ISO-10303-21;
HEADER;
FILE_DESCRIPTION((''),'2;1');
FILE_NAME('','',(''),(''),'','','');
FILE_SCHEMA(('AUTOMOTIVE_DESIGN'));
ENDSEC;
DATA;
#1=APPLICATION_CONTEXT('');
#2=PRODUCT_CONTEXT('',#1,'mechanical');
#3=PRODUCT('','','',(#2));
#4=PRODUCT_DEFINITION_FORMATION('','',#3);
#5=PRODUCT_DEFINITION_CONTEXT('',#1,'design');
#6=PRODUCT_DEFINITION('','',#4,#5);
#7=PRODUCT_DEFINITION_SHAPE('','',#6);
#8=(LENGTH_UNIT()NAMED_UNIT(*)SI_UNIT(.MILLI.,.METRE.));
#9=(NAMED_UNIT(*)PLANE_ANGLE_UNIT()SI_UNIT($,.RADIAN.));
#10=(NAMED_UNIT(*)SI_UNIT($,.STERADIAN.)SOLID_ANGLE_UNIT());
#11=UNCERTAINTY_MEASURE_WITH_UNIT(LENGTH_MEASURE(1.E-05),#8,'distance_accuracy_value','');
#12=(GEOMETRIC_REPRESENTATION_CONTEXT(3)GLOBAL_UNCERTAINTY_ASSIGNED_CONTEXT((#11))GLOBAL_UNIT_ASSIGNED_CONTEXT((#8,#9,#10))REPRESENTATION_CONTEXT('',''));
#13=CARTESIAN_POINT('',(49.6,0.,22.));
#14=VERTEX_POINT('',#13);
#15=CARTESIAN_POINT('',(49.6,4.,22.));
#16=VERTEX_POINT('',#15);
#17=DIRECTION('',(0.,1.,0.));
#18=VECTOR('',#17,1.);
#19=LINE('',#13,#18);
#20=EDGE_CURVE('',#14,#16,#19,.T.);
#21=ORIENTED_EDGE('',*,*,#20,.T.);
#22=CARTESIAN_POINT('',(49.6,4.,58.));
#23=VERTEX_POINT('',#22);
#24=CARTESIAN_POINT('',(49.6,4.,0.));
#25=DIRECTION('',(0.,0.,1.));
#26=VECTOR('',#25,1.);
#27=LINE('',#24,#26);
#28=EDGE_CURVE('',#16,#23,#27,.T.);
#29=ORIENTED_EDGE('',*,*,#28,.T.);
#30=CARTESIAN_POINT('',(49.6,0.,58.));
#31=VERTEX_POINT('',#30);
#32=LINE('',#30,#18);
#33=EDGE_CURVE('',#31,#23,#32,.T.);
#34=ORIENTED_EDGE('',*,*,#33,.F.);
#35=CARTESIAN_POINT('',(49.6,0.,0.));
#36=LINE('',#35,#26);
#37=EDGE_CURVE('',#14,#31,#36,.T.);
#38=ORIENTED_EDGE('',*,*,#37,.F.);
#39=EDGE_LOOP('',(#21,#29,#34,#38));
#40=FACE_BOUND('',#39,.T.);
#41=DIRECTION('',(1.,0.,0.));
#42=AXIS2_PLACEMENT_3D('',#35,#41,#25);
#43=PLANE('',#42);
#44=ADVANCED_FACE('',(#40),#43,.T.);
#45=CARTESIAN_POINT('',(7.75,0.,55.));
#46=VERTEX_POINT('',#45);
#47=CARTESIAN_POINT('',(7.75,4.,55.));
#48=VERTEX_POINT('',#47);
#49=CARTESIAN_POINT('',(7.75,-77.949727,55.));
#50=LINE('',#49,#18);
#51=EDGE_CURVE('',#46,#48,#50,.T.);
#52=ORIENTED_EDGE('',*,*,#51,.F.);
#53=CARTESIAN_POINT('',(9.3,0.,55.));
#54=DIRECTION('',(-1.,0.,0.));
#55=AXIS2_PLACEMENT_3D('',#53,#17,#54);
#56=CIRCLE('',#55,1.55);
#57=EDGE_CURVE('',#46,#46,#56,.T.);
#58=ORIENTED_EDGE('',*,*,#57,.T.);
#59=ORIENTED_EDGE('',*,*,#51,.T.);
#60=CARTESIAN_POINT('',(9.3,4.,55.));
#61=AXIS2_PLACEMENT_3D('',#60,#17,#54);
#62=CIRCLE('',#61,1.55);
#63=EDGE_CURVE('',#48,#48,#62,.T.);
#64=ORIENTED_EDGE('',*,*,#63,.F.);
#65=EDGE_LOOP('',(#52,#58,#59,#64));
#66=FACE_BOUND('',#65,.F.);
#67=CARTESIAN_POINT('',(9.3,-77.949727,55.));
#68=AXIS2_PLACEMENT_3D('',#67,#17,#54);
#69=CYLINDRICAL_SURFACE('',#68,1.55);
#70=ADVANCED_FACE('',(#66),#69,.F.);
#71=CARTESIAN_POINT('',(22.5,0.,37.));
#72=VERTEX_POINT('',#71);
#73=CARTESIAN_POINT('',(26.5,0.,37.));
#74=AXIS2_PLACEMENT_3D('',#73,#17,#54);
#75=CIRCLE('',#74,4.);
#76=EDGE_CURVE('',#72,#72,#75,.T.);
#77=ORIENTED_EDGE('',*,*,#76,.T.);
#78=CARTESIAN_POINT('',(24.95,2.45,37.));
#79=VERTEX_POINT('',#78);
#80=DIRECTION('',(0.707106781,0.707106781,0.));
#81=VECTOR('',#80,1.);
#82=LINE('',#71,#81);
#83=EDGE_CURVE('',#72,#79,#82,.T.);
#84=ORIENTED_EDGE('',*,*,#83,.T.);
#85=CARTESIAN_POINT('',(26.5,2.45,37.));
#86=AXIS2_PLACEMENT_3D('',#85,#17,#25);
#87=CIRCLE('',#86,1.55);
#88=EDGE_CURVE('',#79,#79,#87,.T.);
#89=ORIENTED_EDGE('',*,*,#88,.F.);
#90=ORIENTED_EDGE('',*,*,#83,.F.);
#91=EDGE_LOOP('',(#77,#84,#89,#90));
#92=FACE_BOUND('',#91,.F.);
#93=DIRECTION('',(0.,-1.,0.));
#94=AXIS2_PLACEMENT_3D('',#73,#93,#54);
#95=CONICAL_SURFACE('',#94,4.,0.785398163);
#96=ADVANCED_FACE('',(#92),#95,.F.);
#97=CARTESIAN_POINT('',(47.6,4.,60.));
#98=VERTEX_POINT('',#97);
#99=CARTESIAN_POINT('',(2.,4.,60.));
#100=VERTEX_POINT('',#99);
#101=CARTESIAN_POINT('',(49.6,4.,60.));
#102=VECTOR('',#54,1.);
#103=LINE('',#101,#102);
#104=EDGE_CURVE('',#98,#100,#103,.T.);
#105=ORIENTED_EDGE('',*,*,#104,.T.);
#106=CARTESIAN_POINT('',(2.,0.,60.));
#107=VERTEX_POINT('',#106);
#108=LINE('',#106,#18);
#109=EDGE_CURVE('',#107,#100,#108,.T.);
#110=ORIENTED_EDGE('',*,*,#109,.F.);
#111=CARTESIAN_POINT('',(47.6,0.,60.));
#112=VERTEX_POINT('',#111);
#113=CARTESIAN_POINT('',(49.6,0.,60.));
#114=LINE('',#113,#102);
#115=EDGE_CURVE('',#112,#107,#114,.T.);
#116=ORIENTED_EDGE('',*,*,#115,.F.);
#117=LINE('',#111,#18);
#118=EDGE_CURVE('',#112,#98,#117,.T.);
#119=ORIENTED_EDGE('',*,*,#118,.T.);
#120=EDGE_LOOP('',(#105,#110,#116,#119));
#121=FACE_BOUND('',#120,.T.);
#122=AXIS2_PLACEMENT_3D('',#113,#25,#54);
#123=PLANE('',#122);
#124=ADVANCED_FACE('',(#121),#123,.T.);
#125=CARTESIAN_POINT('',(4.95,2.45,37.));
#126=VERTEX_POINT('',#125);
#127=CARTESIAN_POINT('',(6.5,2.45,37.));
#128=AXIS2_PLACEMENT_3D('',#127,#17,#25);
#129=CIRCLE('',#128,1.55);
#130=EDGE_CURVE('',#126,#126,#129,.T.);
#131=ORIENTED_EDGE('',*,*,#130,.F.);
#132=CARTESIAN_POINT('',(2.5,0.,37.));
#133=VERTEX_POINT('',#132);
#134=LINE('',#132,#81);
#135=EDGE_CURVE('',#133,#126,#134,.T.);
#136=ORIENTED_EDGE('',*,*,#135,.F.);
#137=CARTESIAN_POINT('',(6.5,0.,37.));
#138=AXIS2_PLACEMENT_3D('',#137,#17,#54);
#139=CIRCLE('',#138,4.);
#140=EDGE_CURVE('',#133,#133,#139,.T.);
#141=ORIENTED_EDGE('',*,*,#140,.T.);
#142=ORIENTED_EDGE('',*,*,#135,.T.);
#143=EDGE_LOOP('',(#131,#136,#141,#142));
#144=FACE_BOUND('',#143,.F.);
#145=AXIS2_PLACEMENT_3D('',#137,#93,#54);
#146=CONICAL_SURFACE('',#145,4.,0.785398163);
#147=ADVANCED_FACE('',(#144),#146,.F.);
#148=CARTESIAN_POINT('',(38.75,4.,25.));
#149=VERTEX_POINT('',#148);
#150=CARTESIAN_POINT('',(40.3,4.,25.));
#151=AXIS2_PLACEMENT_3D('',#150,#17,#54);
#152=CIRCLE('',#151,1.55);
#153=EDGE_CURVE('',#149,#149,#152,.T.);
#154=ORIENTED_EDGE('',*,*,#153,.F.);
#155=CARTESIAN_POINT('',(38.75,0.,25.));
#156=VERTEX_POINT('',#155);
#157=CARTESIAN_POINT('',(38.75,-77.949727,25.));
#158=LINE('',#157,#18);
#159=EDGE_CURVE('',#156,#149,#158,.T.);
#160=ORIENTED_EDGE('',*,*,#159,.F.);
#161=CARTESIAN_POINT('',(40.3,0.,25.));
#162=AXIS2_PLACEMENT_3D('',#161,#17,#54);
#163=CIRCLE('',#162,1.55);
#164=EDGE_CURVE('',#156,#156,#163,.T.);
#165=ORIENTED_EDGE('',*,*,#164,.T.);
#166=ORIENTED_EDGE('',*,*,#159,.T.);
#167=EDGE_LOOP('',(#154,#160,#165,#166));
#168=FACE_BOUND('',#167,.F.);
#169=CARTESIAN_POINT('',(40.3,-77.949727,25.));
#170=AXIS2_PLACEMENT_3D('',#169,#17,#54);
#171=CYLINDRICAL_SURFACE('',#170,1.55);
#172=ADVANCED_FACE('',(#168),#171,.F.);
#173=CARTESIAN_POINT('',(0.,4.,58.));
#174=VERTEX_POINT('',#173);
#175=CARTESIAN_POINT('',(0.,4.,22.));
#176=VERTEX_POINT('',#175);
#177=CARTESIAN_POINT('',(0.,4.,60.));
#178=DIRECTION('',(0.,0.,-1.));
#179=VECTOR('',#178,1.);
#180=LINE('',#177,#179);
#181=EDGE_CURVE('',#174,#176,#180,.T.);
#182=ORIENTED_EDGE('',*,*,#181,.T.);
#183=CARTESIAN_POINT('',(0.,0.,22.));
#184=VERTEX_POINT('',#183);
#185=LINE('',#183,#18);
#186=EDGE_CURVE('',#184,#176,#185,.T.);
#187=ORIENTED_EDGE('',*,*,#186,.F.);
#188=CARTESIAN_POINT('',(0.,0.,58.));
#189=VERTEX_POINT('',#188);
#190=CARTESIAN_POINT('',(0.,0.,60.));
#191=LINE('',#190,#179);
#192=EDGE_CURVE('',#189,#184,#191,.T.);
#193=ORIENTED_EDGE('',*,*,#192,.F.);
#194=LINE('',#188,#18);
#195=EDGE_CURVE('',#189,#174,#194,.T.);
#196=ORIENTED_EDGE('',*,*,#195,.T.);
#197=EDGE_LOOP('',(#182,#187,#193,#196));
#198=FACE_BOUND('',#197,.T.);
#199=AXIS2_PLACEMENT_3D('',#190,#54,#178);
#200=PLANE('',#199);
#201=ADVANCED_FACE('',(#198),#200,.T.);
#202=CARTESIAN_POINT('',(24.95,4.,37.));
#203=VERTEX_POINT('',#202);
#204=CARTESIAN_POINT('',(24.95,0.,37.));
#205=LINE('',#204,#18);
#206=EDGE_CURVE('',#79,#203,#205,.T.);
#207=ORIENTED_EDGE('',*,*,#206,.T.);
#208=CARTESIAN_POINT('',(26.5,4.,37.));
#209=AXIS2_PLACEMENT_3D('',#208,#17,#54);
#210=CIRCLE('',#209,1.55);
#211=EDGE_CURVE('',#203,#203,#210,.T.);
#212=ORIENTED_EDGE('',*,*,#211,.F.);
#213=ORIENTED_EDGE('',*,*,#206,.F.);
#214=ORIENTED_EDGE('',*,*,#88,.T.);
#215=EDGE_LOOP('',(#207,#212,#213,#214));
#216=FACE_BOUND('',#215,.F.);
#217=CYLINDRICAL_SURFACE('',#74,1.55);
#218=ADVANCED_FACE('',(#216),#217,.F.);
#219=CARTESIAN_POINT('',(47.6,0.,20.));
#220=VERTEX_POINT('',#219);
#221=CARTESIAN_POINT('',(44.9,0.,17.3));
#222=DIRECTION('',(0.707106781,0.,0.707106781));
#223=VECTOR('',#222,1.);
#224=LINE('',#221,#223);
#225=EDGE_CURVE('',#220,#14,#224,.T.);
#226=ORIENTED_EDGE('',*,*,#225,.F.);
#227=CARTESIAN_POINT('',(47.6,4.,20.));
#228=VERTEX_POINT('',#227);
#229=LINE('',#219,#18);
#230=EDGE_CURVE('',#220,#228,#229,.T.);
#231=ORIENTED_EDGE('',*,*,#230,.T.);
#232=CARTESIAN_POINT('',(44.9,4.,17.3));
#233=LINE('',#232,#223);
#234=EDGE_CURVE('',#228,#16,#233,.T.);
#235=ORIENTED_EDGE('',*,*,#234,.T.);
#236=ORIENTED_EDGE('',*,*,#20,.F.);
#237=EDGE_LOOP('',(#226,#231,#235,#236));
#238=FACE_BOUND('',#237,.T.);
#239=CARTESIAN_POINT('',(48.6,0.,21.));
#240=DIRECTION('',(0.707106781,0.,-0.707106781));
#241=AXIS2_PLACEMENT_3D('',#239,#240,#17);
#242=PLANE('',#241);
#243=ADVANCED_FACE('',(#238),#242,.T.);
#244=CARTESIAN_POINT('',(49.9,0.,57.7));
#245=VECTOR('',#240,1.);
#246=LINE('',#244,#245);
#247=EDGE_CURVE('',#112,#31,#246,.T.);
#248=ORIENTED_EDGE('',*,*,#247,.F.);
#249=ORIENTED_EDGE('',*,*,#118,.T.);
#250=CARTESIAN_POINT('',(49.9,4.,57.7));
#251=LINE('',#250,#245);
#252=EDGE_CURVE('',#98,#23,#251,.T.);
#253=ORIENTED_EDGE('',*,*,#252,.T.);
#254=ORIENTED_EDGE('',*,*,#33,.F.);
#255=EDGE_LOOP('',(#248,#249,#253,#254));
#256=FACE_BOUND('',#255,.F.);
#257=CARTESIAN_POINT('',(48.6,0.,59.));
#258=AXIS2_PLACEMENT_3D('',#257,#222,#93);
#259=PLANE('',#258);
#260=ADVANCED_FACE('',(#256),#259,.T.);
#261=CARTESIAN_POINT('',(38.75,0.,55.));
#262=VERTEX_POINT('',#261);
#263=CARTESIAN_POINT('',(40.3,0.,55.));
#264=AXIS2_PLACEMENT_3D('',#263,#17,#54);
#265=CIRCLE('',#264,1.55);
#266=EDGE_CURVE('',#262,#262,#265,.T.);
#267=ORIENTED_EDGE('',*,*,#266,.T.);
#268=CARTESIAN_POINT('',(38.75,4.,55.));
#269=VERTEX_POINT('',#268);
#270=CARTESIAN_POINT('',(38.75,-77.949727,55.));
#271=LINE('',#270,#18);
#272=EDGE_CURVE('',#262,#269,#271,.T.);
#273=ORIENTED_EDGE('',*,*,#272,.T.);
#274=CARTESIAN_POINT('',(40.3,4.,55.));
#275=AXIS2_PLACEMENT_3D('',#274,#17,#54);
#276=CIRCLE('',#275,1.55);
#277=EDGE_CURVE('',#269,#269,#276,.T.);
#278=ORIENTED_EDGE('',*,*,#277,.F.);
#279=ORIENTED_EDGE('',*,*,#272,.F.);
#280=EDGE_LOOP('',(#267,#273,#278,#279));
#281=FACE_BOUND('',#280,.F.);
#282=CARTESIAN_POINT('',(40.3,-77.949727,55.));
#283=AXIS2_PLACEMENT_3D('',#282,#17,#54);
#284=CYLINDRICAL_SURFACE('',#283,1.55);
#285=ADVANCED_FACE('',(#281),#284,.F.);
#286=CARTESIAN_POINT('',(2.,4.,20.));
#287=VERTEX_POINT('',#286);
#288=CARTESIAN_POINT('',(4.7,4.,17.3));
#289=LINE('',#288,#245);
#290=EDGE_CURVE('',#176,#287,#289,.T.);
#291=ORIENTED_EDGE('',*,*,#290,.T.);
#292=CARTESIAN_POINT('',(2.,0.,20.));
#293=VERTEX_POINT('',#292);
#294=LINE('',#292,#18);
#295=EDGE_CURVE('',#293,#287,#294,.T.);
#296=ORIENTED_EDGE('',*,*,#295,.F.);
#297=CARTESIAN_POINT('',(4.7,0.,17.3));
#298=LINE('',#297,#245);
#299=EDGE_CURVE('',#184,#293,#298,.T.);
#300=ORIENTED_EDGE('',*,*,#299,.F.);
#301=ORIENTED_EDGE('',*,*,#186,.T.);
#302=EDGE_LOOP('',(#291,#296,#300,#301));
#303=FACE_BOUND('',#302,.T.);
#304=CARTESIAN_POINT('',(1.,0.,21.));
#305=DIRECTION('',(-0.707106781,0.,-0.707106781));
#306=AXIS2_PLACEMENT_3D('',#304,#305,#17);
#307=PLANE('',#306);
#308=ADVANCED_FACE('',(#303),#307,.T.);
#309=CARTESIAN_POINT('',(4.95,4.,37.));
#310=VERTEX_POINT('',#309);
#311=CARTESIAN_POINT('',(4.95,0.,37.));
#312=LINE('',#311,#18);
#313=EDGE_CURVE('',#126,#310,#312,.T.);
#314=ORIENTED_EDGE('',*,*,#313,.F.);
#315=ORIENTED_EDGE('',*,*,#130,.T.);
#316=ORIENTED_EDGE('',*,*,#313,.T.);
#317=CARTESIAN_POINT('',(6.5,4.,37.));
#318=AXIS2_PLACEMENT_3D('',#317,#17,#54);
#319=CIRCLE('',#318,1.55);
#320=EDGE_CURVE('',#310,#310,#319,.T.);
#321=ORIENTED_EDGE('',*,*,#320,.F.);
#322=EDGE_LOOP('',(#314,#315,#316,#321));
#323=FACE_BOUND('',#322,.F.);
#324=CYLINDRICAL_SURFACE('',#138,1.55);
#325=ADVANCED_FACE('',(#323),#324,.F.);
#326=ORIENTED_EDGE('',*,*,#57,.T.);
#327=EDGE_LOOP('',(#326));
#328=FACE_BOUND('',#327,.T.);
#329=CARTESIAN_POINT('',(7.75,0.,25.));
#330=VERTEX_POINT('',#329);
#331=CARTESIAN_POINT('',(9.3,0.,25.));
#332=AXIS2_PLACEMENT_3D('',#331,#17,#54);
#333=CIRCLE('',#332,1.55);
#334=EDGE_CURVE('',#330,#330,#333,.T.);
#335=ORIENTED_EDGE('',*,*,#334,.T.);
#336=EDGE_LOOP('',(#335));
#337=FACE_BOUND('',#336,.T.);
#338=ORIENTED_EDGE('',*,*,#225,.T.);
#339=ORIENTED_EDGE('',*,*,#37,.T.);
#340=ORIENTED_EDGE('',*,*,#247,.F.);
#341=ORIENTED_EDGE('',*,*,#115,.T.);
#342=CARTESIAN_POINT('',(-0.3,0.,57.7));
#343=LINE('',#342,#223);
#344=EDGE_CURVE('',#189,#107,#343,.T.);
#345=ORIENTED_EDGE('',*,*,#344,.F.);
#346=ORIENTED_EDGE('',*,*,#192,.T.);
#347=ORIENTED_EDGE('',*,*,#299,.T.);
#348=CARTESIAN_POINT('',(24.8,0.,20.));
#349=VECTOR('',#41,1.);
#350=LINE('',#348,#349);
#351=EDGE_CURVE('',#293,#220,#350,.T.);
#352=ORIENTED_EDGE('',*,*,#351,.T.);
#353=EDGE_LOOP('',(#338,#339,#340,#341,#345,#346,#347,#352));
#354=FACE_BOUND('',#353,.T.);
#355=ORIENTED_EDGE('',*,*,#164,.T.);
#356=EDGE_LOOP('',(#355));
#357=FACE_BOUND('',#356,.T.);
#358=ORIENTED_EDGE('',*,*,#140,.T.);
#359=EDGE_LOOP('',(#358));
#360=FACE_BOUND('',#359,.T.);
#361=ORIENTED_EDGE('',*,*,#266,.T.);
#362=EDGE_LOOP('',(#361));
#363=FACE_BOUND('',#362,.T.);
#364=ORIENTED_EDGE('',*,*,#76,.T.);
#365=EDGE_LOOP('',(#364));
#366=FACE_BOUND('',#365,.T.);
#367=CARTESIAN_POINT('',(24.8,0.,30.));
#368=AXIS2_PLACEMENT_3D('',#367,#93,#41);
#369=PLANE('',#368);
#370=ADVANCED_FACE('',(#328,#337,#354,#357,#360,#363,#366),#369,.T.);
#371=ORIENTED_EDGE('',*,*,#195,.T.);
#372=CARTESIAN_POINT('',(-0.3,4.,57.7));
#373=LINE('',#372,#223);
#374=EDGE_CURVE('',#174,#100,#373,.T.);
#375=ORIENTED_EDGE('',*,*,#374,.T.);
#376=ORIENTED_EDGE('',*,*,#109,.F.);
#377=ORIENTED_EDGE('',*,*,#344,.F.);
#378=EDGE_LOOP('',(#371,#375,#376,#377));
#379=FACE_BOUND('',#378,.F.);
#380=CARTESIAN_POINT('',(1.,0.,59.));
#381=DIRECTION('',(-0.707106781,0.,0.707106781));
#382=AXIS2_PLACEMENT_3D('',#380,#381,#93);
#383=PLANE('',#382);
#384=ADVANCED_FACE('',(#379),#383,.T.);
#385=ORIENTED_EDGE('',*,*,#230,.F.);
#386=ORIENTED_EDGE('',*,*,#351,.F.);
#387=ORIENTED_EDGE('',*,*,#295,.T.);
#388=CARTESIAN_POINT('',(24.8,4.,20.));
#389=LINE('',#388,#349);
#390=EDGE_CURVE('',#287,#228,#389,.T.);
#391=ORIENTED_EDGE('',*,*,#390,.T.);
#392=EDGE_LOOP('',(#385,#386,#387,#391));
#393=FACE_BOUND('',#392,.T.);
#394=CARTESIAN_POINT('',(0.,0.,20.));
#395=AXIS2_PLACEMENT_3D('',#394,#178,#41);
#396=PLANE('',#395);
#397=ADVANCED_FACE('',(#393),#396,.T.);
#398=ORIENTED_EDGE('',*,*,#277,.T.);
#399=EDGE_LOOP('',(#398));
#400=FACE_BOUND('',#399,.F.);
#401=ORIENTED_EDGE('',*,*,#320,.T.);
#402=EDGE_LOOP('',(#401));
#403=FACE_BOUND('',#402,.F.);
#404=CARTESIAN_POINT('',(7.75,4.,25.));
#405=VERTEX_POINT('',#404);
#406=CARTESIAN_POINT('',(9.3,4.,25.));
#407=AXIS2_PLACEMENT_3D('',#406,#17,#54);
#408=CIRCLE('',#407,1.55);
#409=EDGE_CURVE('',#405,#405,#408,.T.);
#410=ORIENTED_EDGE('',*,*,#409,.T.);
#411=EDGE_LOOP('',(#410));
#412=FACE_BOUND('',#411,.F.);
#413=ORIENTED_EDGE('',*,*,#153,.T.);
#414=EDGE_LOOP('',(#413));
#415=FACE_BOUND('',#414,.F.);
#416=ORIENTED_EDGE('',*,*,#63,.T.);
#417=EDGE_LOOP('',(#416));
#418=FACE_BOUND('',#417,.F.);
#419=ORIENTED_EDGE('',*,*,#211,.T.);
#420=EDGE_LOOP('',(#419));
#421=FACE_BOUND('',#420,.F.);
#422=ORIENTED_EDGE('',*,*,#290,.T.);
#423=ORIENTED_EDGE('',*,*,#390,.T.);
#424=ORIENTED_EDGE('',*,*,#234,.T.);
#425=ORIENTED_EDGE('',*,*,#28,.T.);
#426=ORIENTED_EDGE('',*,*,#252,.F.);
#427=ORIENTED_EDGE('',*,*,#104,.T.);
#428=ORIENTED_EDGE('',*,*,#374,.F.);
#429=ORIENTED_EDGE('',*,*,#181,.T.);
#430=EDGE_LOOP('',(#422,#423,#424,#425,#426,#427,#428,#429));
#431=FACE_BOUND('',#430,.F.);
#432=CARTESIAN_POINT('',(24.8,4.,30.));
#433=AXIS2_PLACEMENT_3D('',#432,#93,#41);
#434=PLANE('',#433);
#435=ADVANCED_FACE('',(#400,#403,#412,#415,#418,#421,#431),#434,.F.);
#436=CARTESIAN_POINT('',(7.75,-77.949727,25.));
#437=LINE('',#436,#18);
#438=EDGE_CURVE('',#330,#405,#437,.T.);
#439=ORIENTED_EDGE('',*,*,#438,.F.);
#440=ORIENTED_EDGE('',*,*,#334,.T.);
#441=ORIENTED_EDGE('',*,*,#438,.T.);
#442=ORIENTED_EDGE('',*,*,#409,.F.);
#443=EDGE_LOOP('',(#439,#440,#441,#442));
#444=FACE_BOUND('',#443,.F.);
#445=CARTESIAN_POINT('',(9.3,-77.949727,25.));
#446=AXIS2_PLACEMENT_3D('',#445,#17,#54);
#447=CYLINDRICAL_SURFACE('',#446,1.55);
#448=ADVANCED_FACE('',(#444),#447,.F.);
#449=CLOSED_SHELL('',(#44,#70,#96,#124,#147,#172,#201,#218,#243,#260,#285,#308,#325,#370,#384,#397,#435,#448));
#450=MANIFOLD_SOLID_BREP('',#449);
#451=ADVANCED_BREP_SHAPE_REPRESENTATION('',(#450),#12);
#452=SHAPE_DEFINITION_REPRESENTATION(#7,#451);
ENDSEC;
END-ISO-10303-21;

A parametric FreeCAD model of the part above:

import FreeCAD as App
import Part
import Sketcher

V = App.Vector


def edges_at(feature, points):
    """Names of the edges that pass closest to the given points."""
    edges = feature.Shape.Edges
    near = lambda p: min(range(len(edges)), key=lambda i: edges[i].distToShape(Part.Vertex(*p))[0])
    return sorted({f"Edge{near(p) + 1}" for p in points})


def add_polygon(sketch, points):
    """Adds a closed chain of lines whose ends are joined by coincident constraints."""
    first, n = sketch.GeometryCount, len(points)
    for a, b in zip(points, points[1:] + points[:1]):
        sketch.addGeometry(Part.LineSegment(App.Vector(*a, 0), App.Vector(*b, 0)), False)
    for i in range(n):
        sketch.addConstraint(Sketcher.Constraint("Coincident", first + i, 2, first + (i + 1) % n, 1))

doc = App.newDocument("Part")
body = doc.addObject("PartDesign::Body", "Body")

# Sketch on XZ plane
sketch1 = body.newObject("Sketcher::SketchObject", "Sketch")
sketch1.AttachmentSupport = (doc.getObject("XZ_Plane"), [""])
sketch1.MapMode = "FlatFace"
add_polygon(sketch1, [(0, 0), (49.6, 0), (49.6, 60), (0, 60)])  # lines 0-3
sketch1.addConstraint([
    Sketcher.Constraint("Horizontal", 0),
    Sketcher.Constraint("Vertical", 1),
    Sketcher.Constraint("Horizontal", 2),
    Sketcher.Constraint("Vertical", 3),
    Sketcher.Constraint("Coincident", 3, 2, -1, 1),
    Sketcher.Constraint("DistanceY", 1, 1, 1, 2, 60.0),
    Sketcher.Constraint("DistanceX", 0, 1, 0, 2, 49.6),
])
pad1 = body.newObject("PartDesign::Pad", "Pad")
pad1.Profile = sketch1
pad1.Length = 4
pad1.Reversed = True

# Sketch on XZ plane
sketch2 = body.newObject("Sketcher::SketchObject", "Sketch001")
sketch2.AttachmentSupport = (doc.getObject("XZ_Plane"), [""])
sketch2.MapMode = "FlatFace"
sketch2.addGeometry([
    Part.Circle(V(9.3, 55, 0), V(0, 0, 1), 1.55),
    Part.Circle(V(40.3, 55, 0), V(0, 0, 1), 1.55),
    Part.Circle(V(9.3, 25, 0), V(0, 0, 1), 1.55),
    Part.Circle(V(40.3, 25, 0), V(0, 0, 1), 1.55),
], False)
sketch2.addConstraint([
    Sketcher.Constraint("Equal", 0, 1),
    Sketcher.Constraint("Equal", 1, 2),
    Sketcher.Constraint("Equal", 2, 3),
    Sketcher.Constraint("Horizontal", 0, 3, 1, 3),
    Sketcher.Constraint("Horizontal", 2, 3, 3, 3),
    Sketcher.Constraint("Vertical", 0, 3, 2, 3),
    Sketcher.Constraint("Vertical", 1, 3, 3, 3),
    Sketcher.Constraint("Diameter", 0, 3.1),
    Sketcher.Constraint("DistanceY", -1, 1, 0, 3, 55.0),
    Sketcher.Constraint("DistanceY", -1, 1, 2, 3, 25.0),
    Sketcher.Constraint("DistanceX", 0, 3, 1, 3, 31.0),
    Sketcher.Constraint("DistanceX", -1, 1, 0, 3, 9.3),
])
doc.recompute()
hole = body.newObject("PartDesign::Hole", "Hole")
hole.Profile = sketch2
hole.ThreadType = "None"
hole.Diameter = 3.1
hole.DepthType = "ThroughAll"

# Sketch on XZ plane
sketch3 = body.newObject("Sketcher::SketchObject", "Sketch002")
sketch3.AttachmentSupport = (doc.getObject("XZ_Plane"), [""])
sketch3.MapMode = "FlatFace"
sketch3.addGeometry([
    Part.Circle(V(6.5, 37, 0), V(0, 0, 1), 1.55),
    Part.Circle(V(26.5, 37, 0), V(0, 0, 1), 1.55),
], False)
sketch3.addConstraint([
    Sketcher.Constraint("Equal", 0, 1),
    Sketcher.Constraint("Horizontal", 0, 3, 1, 3),
    Sketcher.Constraint("Diameter", 0, 3.1),
    Sketcher.Constraint("DistanceY", -1, 1, 0, 3, 37.0),
    Sketcher.Constraint("DistanceX", 0, 3, 1, 3, 20.0),
    Sketcher.Constraint("DistanceX", -1, 1, 0, 3, 6.5),
])
doc.recompute()
hole2 = body.newObject("PartDesign::Hole", "Hole001")
hole2.Profile = sketch3
hole2.ThreadType = "None"
hole2.Diameter = 3.1
hole2.DepthType = "ThroughAll"
hole2.HoleCutType = "Countersink"
hole2.HoleCutDiameter = 8
hole2.HoleCutCountersinkAngle = 90

# Sketch on XZ plane
sketch4 = body.newObject("Sketcher::SketchObject", "Sketch003")
sketch4.AttachmentSupport = (doc.getObject("XZ_Plane"), [""])
sketch4.MapMode = "FlatFace"
add_polygon(sketch4, [(0, 20), (0, 0), (49.6, 0), (49.6, 20)])  # lines 0-3
sketch4.addConstraint([
    Sketcher.Constraint("Vertical", 0),
    Sketcher.Constraint("Horizontal", 1),
    Sketcher.Constraint("Vertical", 2),
    Sketcher.Constraint("Horizontal", 3),
    Sketcher.Constraint("Coincident", 0, 2, -1, 1),
    Sketcher.Constraint("DistanceY", 0, 2, 0, 1, 20.0),
    Sketcher.Constraint("DistanceX", 1, 1, 1, 2, 49.6),
])
pocket1 = body.newObject("PartDesign::Pocket", "Pocket")
pocket1.Profile = sketch4
pocket1.Type = "ThroughAll"
doc.recompute()

chamfer = body.newObject("PartDesign::Chamfer", "Chamfer")
chamfer.Base = (pocket1, edges_at(pocket1, [
    (49.6, 2, 60),
    (49.6, 2, 20),
    (0, 2, 60),
    (0, 2, 20),
]))
chamfer.Size = 2

doc.recompute()
